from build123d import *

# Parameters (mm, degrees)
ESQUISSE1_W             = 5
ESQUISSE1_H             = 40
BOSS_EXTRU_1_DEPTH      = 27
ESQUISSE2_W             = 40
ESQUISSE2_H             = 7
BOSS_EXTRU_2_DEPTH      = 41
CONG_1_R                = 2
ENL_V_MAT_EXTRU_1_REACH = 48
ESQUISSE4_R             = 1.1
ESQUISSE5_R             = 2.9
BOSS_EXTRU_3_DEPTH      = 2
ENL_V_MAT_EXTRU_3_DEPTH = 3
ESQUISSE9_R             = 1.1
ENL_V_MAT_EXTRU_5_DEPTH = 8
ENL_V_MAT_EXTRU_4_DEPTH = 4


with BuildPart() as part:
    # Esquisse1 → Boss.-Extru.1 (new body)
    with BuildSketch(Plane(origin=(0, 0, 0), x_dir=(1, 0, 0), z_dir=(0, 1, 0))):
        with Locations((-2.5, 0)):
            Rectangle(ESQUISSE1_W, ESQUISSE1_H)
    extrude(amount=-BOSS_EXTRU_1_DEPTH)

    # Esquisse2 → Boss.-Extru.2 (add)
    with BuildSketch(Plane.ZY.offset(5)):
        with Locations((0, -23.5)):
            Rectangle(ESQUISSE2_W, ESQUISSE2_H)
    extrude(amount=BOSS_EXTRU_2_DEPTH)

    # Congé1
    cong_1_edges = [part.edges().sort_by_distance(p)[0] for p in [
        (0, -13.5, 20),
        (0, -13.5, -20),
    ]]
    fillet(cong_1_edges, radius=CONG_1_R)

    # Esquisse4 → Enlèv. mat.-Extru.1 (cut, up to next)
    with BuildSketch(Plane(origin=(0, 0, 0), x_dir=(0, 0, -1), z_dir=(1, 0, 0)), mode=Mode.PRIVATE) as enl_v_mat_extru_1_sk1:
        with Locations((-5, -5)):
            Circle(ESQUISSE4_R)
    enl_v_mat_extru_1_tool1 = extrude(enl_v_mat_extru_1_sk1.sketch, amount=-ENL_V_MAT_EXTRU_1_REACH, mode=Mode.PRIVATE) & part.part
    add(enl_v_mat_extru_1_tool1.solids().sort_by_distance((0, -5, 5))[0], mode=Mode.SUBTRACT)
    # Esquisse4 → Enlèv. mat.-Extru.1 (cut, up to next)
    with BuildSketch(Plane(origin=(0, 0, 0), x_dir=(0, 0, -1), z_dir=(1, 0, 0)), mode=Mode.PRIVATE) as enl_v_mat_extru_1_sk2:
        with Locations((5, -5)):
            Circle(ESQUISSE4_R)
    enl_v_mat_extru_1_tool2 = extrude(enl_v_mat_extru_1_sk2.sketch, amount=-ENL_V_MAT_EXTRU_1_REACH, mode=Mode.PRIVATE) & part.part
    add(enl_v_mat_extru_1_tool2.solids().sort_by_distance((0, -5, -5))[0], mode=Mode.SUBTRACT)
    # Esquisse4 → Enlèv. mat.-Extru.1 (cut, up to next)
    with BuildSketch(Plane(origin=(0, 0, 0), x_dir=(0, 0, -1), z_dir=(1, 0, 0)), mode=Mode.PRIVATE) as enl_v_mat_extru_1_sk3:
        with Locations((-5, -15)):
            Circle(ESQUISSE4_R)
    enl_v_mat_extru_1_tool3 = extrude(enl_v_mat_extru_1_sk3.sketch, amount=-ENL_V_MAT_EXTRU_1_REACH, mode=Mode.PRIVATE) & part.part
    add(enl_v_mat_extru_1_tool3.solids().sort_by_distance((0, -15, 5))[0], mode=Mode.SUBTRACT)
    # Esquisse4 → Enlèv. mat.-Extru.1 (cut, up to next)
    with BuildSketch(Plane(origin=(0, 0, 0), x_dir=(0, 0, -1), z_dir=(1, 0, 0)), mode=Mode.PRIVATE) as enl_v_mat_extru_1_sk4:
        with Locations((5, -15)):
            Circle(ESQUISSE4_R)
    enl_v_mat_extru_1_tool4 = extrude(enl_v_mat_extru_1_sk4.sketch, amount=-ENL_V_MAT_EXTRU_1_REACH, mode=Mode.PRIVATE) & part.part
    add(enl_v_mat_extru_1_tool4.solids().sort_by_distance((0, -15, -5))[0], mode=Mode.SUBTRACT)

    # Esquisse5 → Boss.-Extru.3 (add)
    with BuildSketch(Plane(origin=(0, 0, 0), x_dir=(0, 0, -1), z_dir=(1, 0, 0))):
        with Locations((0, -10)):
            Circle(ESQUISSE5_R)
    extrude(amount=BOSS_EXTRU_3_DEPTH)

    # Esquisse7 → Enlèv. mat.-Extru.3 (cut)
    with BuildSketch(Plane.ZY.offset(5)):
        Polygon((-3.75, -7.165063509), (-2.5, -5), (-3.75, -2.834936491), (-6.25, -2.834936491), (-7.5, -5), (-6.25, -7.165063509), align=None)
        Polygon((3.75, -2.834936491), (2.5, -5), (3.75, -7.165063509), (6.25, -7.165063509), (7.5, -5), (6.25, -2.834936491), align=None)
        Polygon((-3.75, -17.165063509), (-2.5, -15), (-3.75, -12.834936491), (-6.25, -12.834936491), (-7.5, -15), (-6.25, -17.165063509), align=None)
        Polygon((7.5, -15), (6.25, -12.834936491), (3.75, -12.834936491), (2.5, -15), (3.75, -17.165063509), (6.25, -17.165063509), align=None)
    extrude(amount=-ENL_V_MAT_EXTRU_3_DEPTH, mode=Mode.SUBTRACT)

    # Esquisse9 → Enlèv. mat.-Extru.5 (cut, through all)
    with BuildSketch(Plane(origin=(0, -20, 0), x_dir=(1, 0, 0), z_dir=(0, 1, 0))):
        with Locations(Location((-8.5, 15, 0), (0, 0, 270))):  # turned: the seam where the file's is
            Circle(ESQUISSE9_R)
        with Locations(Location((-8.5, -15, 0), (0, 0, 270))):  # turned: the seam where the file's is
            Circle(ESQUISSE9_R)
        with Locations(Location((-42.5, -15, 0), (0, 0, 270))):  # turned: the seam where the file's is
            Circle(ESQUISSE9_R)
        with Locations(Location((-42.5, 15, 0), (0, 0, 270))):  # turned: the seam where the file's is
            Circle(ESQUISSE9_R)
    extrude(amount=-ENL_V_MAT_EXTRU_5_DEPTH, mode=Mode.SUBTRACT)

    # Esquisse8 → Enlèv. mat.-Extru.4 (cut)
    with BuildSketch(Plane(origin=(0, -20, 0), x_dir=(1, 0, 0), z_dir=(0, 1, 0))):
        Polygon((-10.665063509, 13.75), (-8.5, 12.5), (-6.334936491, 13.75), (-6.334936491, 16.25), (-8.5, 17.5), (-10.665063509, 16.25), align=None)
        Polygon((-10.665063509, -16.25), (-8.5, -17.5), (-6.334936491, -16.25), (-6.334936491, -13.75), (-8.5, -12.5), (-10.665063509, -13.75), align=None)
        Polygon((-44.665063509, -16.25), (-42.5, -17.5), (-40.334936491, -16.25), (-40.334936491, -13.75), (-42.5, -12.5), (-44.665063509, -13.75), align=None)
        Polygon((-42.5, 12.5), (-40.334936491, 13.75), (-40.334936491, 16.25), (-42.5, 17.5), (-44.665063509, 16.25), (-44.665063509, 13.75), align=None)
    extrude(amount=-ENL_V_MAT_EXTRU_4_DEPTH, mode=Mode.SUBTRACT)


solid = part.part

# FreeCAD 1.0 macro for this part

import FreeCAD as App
import Part
import Sketcher
Q = App.Units.Quantity


def edges_at(feature, points):
    """Names of the edges that pass closest to the given points."""
    edges = feature.Shape.Edges
    near = lambda p: min(range(len(edges)), key=lambda i: edges[i].distToShape(Part.Vertex(*p))[0])
    return sorted({f"Edge{near(p) + 1}" for p in points})


def add_polygon(sketch, points):
    """Adds a closed chain of lines whose ends are joined by coincident constraints."""
    first, n = sketch.GeometryCount, len(points)
    for a, b in zip(points, points[1:] + points[:1]):
        sketch.addGeometry(Part.LineSegment(App.Vector(*a, 0), App.Vector(*b, 0)), False)
    for i in range(n):
        sketch.addConstraint(Sketcher.Constraint("Coincident", first + i, 2, first + (i + 1) % n, 1))

doc = App.newDocument("Part")
body = doc.addObject("PartDesign::Body", "Body")

sketch1 = doc.addObject("Sketcher::SketchObject", "Sketch")
body.addObject(sketch1)
sketch1.AttachmentSupport = (doc.XZ_Plane, [""])
sketch1.MapMode = "FlatFace"
add_polygon(sketch1, [(-5, -20), (-5, 20), (0, 20), (0, -20)])
sketch1.addConstraint([
    Sketcher.Constraint("Vertical", 0),
    Sketcher.Constraint("Horizontal", 1),
    Sketcher.Constraint("Vertical", 2),
    Sketcher.Constraint("Horizontal", 3),
    Sketcher.Constraint("Symmetric", 1, 2, 2, 2, -1, 1),
    Sketcher.Constraint("DistanceX", 1, 1, 1, 2, 5.0),
    Sketcher.Constraint("DistanceY", 0, 1, 0, 2, 40.0),
])
pad1 = doc.addObject("PartDesign::Pad", "Pad")
body.addObject(pad1)
pad1.Profile = sketch1
pad1.Length = 27

sketch2 = doc.addObject("Sketcher::SketchObject", "Sketch001")
body.addObject(sketch2)
sketch2.AttachmentSupport = (doc.YZ_Plane, [""])
sketch2.MapMode = "FlatFace"
sketch2.AttachmentOffset = App.Placement(App.Vector(0, 0, -5), App.Rotation())
add_polygon(sketch2, [(-20, -20), (-27, -20), (-27, 20), (-20, 20)])
sketch2.addConstraint([
    Sketcher.Constraint("Horizontal", 0),
    Sketcher.Constraint("Vertical", 1),
    Sketcher.Constraint("Horizontal", 2),
    Sketcher.Constraint("Vertical", 3),
    Sketcher.Constraint("DistanceX", 0, 2, 0, 1, 7.0),
    Sketcher.Constraint("DistanceY", 1, 1, 1, 2, 40.0),
    Sketcher.Constraint("DistanceX", 0, 2, -1, 1, 27.0),
    Sketcher.Constraint("DistanceY", 0, 2, -1, 1, 20.0),
])
pad2 = doc.addObject("PartDesign::Pad", "Pad001")
body.addObject(pad2)
pad2.Profile = sketch2
pad2.Length = 41
pad2.Reversed = True
doc.recompute()

fillet = doc.addObject("PartDesign::Fillet", "Fillet")
body.addObject(fillet)
fillet.Base = (pad2, edges_at(pad2, [(0, -13.5, 20), (0, -13.5, -20)]))
fillet.Radius = 2

sketch3 = doc.addObject("Sketcher::SketchObject", "Sketch002")
body.addObject(sketch3)
sketch3.AttachmentSupport = (doc.YZ_Plane, [""])
sketch3.MapMode = "FlatFace"
sketch3.addGeometry(Part.Circle(App.Vector(-5, 5, 0), App.Vector(0, 0, 1), 1.1), False)
sketch3.addConstraint([
    Sketcher.Constraint("Diameter", 0, 2.2),
    Sketcher.Constraint("DistanceX", 0, 3, -1, 1, 5.0),
    Sketcher.Constraint("DistanceY", -1, 1, 0, 3, 5.0),
])
pocket1 = doc.addObject("PartDesign::Pocket", "Pocket")
body.addObject(pocket1)
pocket1.Profile = sketch3
pocket1.Type = "UpToFirst"

sketch4 = doc.addObject("Sketcher::SketchObject", "Sketch003")
body.addObject(sketch4)
sketch4.AttachmentSupport = (doc.YZ_Plane, [""])
sketch4.MapMode = "FlatFace"
sketch4.addGeometry(Part.Circle(App.Vector(-5, -5, 0), App.Vector(0, 0, 1), 1.1), False)
sketch4.addConstraint([
    Sketcher.Constraint("Diameter", 0, 2.2),
    Sketcher.Constraint("DistanceX", 0, 3, -1, 1, 5.0),
    Sketcher.Constraint("DistanceY", 0, 3, -1, 1, 5.0),
])
pocket2 = doc.addObject("PartDesign::Pocket", "Pocket001")
body.addObject(pocket2)
pocket2.Profile = sketch4
pocket2.Type = "UpToFirst"

sketch5 = doc.addObject("Sketcher::SketchObject", "Sketch004")
body.addObject(sketch5)
sketch5.AttachmentSupport = (doc.YZ_Plane, [""])
sketch5.MapMode = "FlatFace"
sketch5.addGeometry(Part.Circle(App.Vector(-15, 5, 0), App.Vector(0, 0, 1), 1.1), False)
sketch5.addConstraint([
    Sketcher.Constraint("Diameter", 0, 2.2),
    Sketcher.Constraint("DistanceX", 0, 3, -1, 1, 15.0),
    Sketcher.Constraint("DistanceY", -1, 1, 0, 3, 5.0),
])
pocket3 = doc.addObject("PartDesign::Pocket", "Pocket002")
body.addObject(pocket3)
pocket3.Profile = sketch5
pocket3.Type = "UpToFirst"

sketch6 = doc.addObject("Sketcher::SketchObject", "Sketch005")
body.addObject(sketch6)
sketch6.AttachmentSupport = (doc.YZ_Plane, [""])
sketch6.MapMode = "FlatFace"
sketch6.addGeometry(Part.Circle(App.Vector(-15, -5, 0), App.Vector(0, 0, 1), 1.1), False)
sketch6.addConstraint([
    Sketcher.Constraint("Diameter", 0, 2.2),
    Sketcher.Constraint("DistanceX", 0, 3, -1, 1, 15.0),
    Sketcher.Constraint("DistanceY", 0, 3, -1, 1, 5.0),
])
pocket4 = doc.addObject("PartDesign::Pocket", "Pocket003")
body.addObject(pocket4)
pocket4.Profile = sketch6
pocket4.Type = "UpToFirst"

sketch7 = doc.addObject("Sketcher::SketchObject", "Sketch006")
body.addObject(sketch7)
sketch7.AttachmentSupport = (doc.YZ_Plane, [""])
sketch7.MapMode = "FlatFace"
sketch7.addGeometry(Part.Circle(App.Vector(-10, 0, 0), App.Vector(0, 0, 1), 2.9), False)
sketch7.addConstraint([
    Sketcher.Constraint("PointOnObject", 0, 3, -1),
    Sketcher.Constraint("Diameter", 0, 5.8),
    Sketcher.Constraint("DistanceX", 0, 3, -1, 1, 10.0),
])
pad3 = doc.addObject("PartDesign::Pad", "Pad002")
body.addObject(pad3)
pad3.Profile = sketch7
pad3.Length = 2

sketch8 = doc.addObject("Sketcher::SketchObject", "Sketch007")
body.addObject(sketch8)
sketch8.AttachmentSupport = (doc.YZ_Plane, [""])
sketch8.MapMode = "FlatFace"
sketch8.AttachmentOffset = App.Placement(App.Vector(0, 0, -5), App.Rotation())
add_polygon(sketch8, [(-7.2, -3.8), (-5, -2.5), (-2.8, -3.8), (-2.8, -6.2), (-5, -7.5), (-7.2, -6.2)])
add_polygon(sketch8, [(-2.8, 3.8), (-5, 2.5), (-7.2, 3.8), (-7.2, 6.2), (-5, 7.5), (-2.8, 6.2)])
add_polygon(sketch8, [(-17.2, -3.8), (-15, -2.5), (-12.8, -3.8), (-12.8, -6.2), (-15, -7.5), (-17.2, -6.2)])
add_polygon(sketch8, [(-15, 7.5), (-12.8, 6.2), (-12.8, 3.8), (-15, 2.5), (-17.2, 3.8), (-17.2, 6.2)])
sketch8.addConstraint([
    Sketcher.Constraint("Vertical", 2),
    Sketcher.Constraint("Vertical", 5),
    Sketcher.Constraint("Vertical", 8),
    Sketcher.Constraint("Vertical", 11),
    Sketcher.Constraint("Vertical", 14),
    Sketcher.Constraint("Vertical", 17),
    Sketcher.Constraint("Vertical", 19),
    Sketcher.Constraint("Vertical", 22),
    Sketcher.Constraint("Symmetric", 0, 2, 6, 2, -1),
    Sketcher.Constraint("Symmetric", 5, 2, 7, 2, -1),
    Sketcher.Constraint("Symmetric", 3, 2, 9, 2, -1),
    Sketcher.Constraint("Symmetric", 2, 2, 10, 2, -1),
    Sketcher.Constraint("Symmetric", 14, 2, 18, 2, -1),
    Sketcher.Constraint("Symmetric", 12, 2, 20, 2, -1),
    Sketcher.Constraint("Symmetric", 17, 2, 21, 2, -1),
    Sketcher.Constraint("Symmetric", 15, 2, 23, 2, -1),
    Sketcher.Constraint("Parallel", 0, 3),
    Sketcher.Constraint("Parallel", 1, 4),
    Sketcher.Constraint("Parallel", 3, 6),
    Sketcher.Constraint("Parallel", 4, 7),
    Sketcher.Constraint("Parallel", 6, 9),
    Sketcher.Constraint("Parallel", 9, 12),
    Sketcher.Constraint("Parallel", 10, 13),
    Sketcher.Constraint("Parallel", 12, 15),
    Sketcher.Constraint("Parallel", 13, 16),
    Sketcher.Constraint("Parallel", 15, 20),
    Sketcher.Constraint("Parallel", 20, 23),
    Sketcher.Constraint("Horizontal", 2, 2, 4, 2),
    Sketcher.Constraint("Horizontal", 1, 2, 5, 2),
    Sketcher.Constraint("Horizontal", 0, 2, 12, 2),
    Sketcher.Constraint("Horizontal", 5, 2, 13, 2),
    Sketcher.Constraint("Horizontal", 4, 2, 14, 2),
    Sketcher.Constraint("Horizontal", 3, 2, 15, 2),
    Sketcher.Constraint("Horizontal", 14, 2, 16, 2),
    Sketcher.Constraint("Angle", 0, Q("30 deg")),
    Sketcher.Constraint("DistanceY", 2, 2, 2, 1, 2.5),
    Sketcher.Constraint("DistanceX", 0, 2, -1, 1, 5.0),
    Sketcher.Constraint("DistanceX", 12, 2, -1, 1, 15.0),
    Sketcher.Constraint("DistanceY", 3, 2, 0, 2, 5.0),
    Sketcher.Constraint("DistanceY", 0, 2, 6, 2, 5.0),
])
pocket5 = doc.addObject("PartDesign::Pocket", "Pocket004")
body.addObject(pocket5)
pocket5.Profile = sketch8
pocket5.Length = 3
pocket5.Reversed = True

sketch9 = doc.addObject("Sketcher::SketchObject", "Sketch008")
body.addObject(sketch9)
sketch9.AttachmentSupport = (doc.XZ_Plane, [""])
sketch9.MapMode = "FlatFace"
sketch9.AttachmentOffset = App.Placement(App.Vector(0, 0, 20), App.Rotation())
sketch9.addGeometry([
    Part.Circle(App.Vector(-8.5, -15, 0), App.Vector(0, 0, 1), 1.1),
    Part.Circle(App.Vector(-8.5, 15, 0), App.Vector(0, 0, 1), 1.1),
    Part.Circle(App.Vector(-42.5, 15, 0), App.Vector(0, 0, 1), 1.1),
    Part.Circle(App.Vector(-42.5, -15, 0), App.Vector(0, 0, 1), 1.1),
], False)
sketch9.addConstraint([
    Sketcher.Constraint("Equal", 0, 1),
    Sketcher.Constraint("Equal", 1, 2),
    Sketcher.Constraint("Equal", 2, 3),
    Sketcher.Constraint("Symmetric", 0, 3, 1, 3, -1),
    Sketcher.Constraint("Symmetric", 2, 3, 3, 3, -1),
    Sketcher.Constraint("Horizontal", 1, 3, 2, 3),
    Sketcher.Constraint("Diameter", 0, 2.2),
    Sketcher.Constraint("DistanceY", 0, 3, -1, 1, 15.0),
    Sketcher.Constraint("DistanceX", 2, 3, 1, 3, 34.0),
    Sketcher.Constraint("DistanceX", 0, 3, -1, 1, 8.5),
])
pocket6 = doc.addObject("PartDesign::Pocket", "Pocket005")
body.addObject(pocket6)
pocket6.Profile = sketch9
pocket6.Type = "ThroughAll"
pocket6.Reversed = True

sketch10 = doc.addObject("Sketcher::SketchObject", "Sketch009")
body.addObject(sketch10)
sketch10.AttachmentSupport = (doc.XZ_Plane, [""])
sketch10.MapMode = "FlatFace"
sketch10.AttachmentOffset = App.Placement(App.Vector(0, 0, 20), App.Rotation())
add_polygon(sketch10, [(-10.7, -13.8), (-8.5, -12.5), (-6.3, -13.8), (-6.3, -16.2), (-8.5, -17.5), (-10.7, -16.2)])
add_polygon(sketch10, [(-10.7, 16.2), (-8.5, 17.5), (-6.3, 16.2), (-6.3, 13.8), (-8.5, 12.5), (-10.7, 13.8)])
add_polygon(sketch10, [(-44.7, 16.2), (-42.5, 17.5), (-40.3, 16.2), (-40.3, 13.8), (-42.5, 12.5), (-44.7, 13.8)])
add_polygon(sketch10, [(-42.5, -12.5), (-40.3, -13.8), (-40.3, -16.2), (-42.5, -17.5), (-44.7, -16.2), (-44.7, -13.8)])
sketch10.addConstraint([
    Sketcher.Constraint("Vertical", 2),
    Sketcher.Constraint("Vertical", 5),
    Sketcher.Constraint("Vertical", 8),
    Sketcher.Constraint("Vertical", 11),
    Sketcher.Constraint("Vertical", 14),
    Sketcher.Constraint("Vertical", 17),
    Sketcher.Constraint("Vertical", 19),
    Sketcher.Constraint("Vertical", 22),
    Sketcher.Constraint("Symmetric", 3, 2, 6, 2, -1),
    Sketcher.Constraint("Symmetric", 2, 2, 7, 2, -1),
    Sketcher.Constraint("Symmetric", 0, 2, 9, 2, -1),
    Sketcher.Constraint("Symmetric", 5, 2, 10, 2, -1),
    Sketcher.Constraint("Symmetric", 14, 2, 18, 2, -1),
    Sketcher.Constraint("Symmetric", 12, 2, 20, 2, -1),
    Sketcher.Constraint("Symmetric", 17, 2, 21, 2, -1),
    Sketcher.Constraint("Symmetric", 15, 2, 23, 2, -1),
    Sketcher.Constraint("Parallel", 0, 3),
    Sketcher.Constraint("Parallel", 1, 4),
    Sketcher.Constraint("Parallel", 3, 6),
    Sketcher.Constraint("Parallel", 4, 7),
    Sketcher.Constraint("Parallel", 6, 9),
    Sketcher.Constraint("Parallel", 9, 12),
    Sketcher.Constraint("Parallel", 10, 13),
    Sketcher.Constraint("Parallel", 12, 15),
    Sketcher.Constraint("Parallel", 13, 16),
    Sketcher.Constraint("Parallel", 15, 20),
    Sketcher.Constraint("Parallel", 20, 23),
    Sketcher.Constraint("Horizontal", 2, 2, 4, 2),
    Sketcher.Constraint("Horizontal", 1, 2, 5, 2),
    Sketcher.Constraint("Horizontal", 6, 2, 12, 2),
    Sketcher.Constraint("Horizontal", 11, 2, 13, 2),
    Sketcher.Constraint("Horizontal", 10, 2, 14, 2),
    Sketcher.Constraint("Horizontal", 9, 2, 15, 2),
    Sketcher.Constraint("Horizontal", 14, 2, 16, 2),
    Sketcher.Constraint("Angle", 0, Q("30 deg")),
    Sketcher.Constraint("DistanceY", 2, 2, 2, 1, 2.5),
    Sketcher.Constraint("DistanceY", 3, 2, 0, 2, 5.0),
    Sketcher.Constraint("DistanceY", 0, 2, 6, 2, 30.0),
    Sketcher.Constraint("DistanceX", 12, 2, 6, 2, 34.0),
    Sketcher.Constraint("DistanceX", 0, 2, -1, 1, 8.5),
])
pocket7 = doc.addObject("PartDesign::Pocket", "Pocket006")
body.addObject(pocket7)
pocket7.Profile = sketch10
pocket7.Length = 4
pocket7.Reversed = True

doc.recompute()
